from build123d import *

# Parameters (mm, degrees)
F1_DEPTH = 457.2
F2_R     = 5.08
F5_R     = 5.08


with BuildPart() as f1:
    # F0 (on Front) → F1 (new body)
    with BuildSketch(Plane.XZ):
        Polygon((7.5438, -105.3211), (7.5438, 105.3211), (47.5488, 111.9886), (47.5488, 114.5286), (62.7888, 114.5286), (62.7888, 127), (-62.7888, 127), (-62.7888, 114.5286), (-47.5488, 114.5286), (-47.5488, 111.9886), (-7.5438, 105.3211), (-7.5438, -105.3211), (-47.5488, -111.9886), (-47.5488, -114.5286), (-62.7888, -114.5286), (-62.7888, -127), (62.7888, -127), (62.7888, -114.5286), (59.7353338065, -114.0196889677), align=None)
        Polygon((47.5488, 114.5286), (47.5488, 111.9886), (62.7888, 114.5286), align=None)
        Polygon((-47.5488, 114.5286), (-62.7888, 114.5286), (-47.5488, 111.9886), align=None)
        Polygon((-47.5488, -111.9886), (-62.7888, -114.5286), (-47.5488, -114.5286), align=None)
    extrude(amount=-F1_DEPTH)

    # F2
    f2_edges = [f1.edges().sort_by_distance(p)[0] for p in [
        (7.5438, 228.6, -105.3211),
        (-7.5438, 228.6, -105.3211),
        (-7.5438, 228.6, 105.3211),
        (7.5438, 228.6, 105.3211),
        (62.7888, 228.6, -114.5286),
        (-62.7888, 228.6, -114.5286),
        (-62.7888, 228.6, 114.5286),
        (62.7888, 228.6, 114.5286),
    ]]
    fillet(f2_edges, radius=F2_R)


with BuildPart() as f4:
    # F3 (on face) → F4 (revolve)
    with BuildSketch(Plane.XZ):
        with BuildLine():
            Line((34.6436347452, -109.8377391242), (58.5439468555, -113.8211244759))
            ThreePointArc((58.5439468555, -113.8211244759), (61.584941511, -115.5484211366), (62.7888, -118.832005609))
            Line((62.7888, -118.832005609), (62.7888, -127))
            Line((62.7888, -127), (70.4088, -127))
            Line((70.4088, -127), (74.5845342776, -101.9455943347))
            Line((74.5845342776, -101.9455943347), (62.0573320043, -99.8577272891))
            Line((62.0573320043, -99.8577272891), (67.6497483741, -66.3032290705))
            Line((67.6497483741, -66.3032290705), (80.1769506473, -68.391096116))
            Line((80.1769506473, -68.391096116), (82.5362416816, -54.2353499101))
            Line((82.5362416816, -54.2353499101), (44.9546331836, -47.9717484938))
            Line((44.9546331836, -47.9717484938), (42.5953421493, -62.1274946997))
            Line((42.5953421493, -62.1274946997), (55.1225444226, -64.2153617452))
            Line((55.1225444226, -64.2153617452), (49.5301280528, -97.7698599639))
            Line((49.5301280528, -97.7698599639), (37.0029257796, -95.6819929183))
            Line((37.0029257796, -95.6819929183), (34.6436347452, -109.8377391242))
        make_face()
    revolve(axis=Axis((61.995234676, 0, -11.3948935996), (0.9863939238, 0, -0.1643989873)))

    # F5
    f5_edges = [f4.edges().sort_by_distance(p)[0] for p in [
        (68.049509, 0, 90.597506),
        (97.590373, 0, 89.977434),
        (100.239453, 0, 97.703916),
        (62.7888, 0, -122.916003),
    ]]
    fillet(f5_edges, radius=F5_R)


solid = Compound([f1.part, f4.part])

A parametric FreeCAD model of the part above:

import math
import FreeCAD as App
import Part
import Sketcher
Q = App.Units.Quantity


def edges_at(feature, points):
    """Names of the edges that pass closest to the given points."""
    edges = feature.Shape.Edges
    near = lambda p: min(range(len(edges)), key=lambda i: edges[i].distToShape(Part.Vertex(*p))[0])
    return sorted({f"Edge{near(p) + 1}" for p in points})

doc = App.newDocument("Part")
params = doc.addObject("Spreadsheet::Sheet", "Params")
for row, (alias, value) in enumerate([
    ("sketch1_width", "4.944 in"),
    ("sketch1_height", "8.293 in"),
    ("sketch1_height2", "0.491 in"),
    ("pad1_length", "18 in"),
    ("fillet_radius", "0.2 in"),
    ("sketch2_radius", "0.2 in"),
    ("sketch2_length", "1 in"),
    ("sketch2_width", "0.3 in"),
    ("sketch2_length2", "0.5 in"),
    ("sketch2_length3", "1.5 in"),
    ("revolution_angle", "360 deg"),
    ("fillet2_radius", "0.2 in"),
], start=1):
    params.set(f"A{row}", alias)
    params.set(f"B{row}", "=" + value)
    params.setAlias(f"B{row}", alias)

body = doc.addObject("PartDesign::Body", "Body")

sketch1 = body.newObject("Sketcher::SketchObject", "Sketch")
sketch1.AttachmentSupport = (doc.getObject("XZ_Plane"), [""])
sketch1.MapMode = "FlatFace"
sketch1.addGeometry([
    Part.LineSegment(App.Vector(7.5, -105.3, 0), App.Vector(7.5, 105.3, 0)),
    Part.LineSegment(App.Vector(7.5, 105.3, 0), App.Vector(62.8, 114.5, 0)),
    Part.LineSegment(App.Vector(62.8, 114.5, 0), App.Vector(62.8, 127, 0)),
    Part.LineSegment(App.Vector(62.8, 127, 0), App.Vector(-62.8, 127, 0)),
    Part.LineSegment(App.Vector(-62.8, 127, 0), App.Vector(-62.8, 114.5, 0)),
    Part.LineSegment(App.Vector(-62.8, 114.5, 0), App.Vector(-7.5, 105.3, 0)),
    Part.LineSegment(App.Vector(-7.5, 105.3, 0), App.Vector(-7.5, -105.3, 0)),
    Part.LineSegment(App.Vector(-7.5, -105.3, 0), App.Vector(-62.8, -114.5, 0)),
    Part.LineSegment(App.Vector(-62.8, -114.5, 0), App.Vector(-62.8, -127, 0)),
    Part.LineSegment(App.Vector(-62.8, -127, 0), App.Vector(62.8, -127, 0)),
    Part.LineSegment(App.Vector(62.8, -127, 0), App.Vector(62.8, -114.5, 0)),
    Part.LineSegment(App.Vector(62.8, -114.5, 0), App.Vector(59.7, -114, 0)),
    Part.LineSegment(App.Vector(59.7, -114, 0), App.Vector(7.5, -105.3, 0)),
], False)
sketch1.addConstraint([
    Sketcher.Constraint("Coincident", 0, 2, 1, 1),
    Sketcher.Constraint("Coincident", 1, 2, 2, 1),
    Sketcher.Constraint("Coincident", 2, 2, 3, 1),
    Sketcher.Constraint("Coincident", 3, 2, 4, 1),
    Sketcher.Constraint("Coincident", 4, 2, 5, 1),
    Sketcher.Constraint("Coincident", 5, 2, 6, 1),
    Sketcher.Constraint("Coincident", 6, 2, 7, 1),
    Sketcher.Constraint("Coincident", 7, 2, 8, 1),
    Sketcher.Constraint("Coincident", 8, 2, 9, 1),
    Sketcher.Constraint("Coincident", 9, 2, 10, 1),
    Sketcher.Constraint("Coincident", 10, 2, 11, 1),
    Sketcher.Constraint("Coincident", 11, 2, 12, 1),
    Sketcher.Constraint("Coincident", 12, 2, 0, 1),
    Sketcher.Constraint("Vertical", 0),
    Sketcher.Constraint("Vertical", 2),
    Sketcher.Constraint("Horizontal", 3),
    Sketcher.Constraint("Vertical", 4),
    Sketcher.Constraint("Vertical", 6),
    Sketcher.Constraint("Vertical", 8),
    Sketcher.Constraint("Horizontal", 9),
    Sketcher.Constraint("Vertical", 10),
    Sketcher.Constraint("Symmetric", 0, 2, 6, 2, -1, 1),
    Sketcher.Constraint("Symmetric", 1, 2, 7, 2, -1, 1),
    Sketcher.Constraint("Symmetric", 3, 2, 9, 2, -1, 1),
    Sketcher.Constraint("Symmetric", 1, 2, 4, 2, -2),
    Sketcher.Constraint("Parallel", 5, 11),
    Sketcher.Constraint("Parallel", 11, 12),
    Sketcher.Constraint("Horizontal", 0, 2, 5, 2),
    Sketcher.Constraint("Horizontal", 7, 2, 10, 2),
    Sketcher.Constraint("DistanceY", -1, 1, 2, 2, Q("5 in")),
    Sketcher.Constraint("DistanceX", 3, 2, 3, 1, Q("4.944 in")),
    Sketcher.Constraint("DistanceY", 0, 1, 0, 2, Q("8.293 in")),
    Sketcher.Constraint("DistanceY", 2, 1, 2, 2, Q("0.491 in")),
    Sketcher.Constraint("DistanceX", -1, 1, 0, 2, Q("0.297 in")),
    Sketcher.Constraint("Distance", 12, Q("52.911451 mm")),
])
sketch1.setExpression("Constraints[30]", "Params.sketch1_width")
sketch1.setExpression("Constraints[31]", "Params.sketch1_height")
sketch1.setExpression("Constraints[32]", "Params.sketch1_height2")
pad1 = body.newObject("PartDesign::Pad", "Pad")
pad1.Profile = sketch1
pad1.setExpression("Length", "Params.pad1_length")
pad1.Reversed = True
doc.recompute()

fillet = body.newObject("PartDesign::Fillet", "Fillet")
fillet.Base = (pad1, edges_at(pad1, [
    (7.544, 228.6, -105.321),
    (-7.544, 228.6, -105.321),
    (-7.544, 228.6, 105.321),
    (7.544, 228.6, 105.321),
    (62.789, 228.6, -114.529),
    (-62.789, 228.6, -114.529),
    (-62.789, 228.6, 114.529),
    (62.789, 228.6, 114.529),
]))
fillet.setExpression("Radius", "Params.fillet_radius")
body2 = doc.addObject("PartDesign::Body", "Body001")

sketch2 = body2.newObject("Sketcher::SketchObject", "Sketch001")
sketch2.AttachmentSupport = (doc.getObject("XZ_Plane001"), [""])
sketch2.MapMode = "FlatFace"
sketch2.addGeometry([
    Part.LineSegment(App.Vector(35, -110, 0), App.Vector(59, -114, 0)),
    Part.ArcOfCircle(Part.Circle(App.Vector(58, -119, 0), App.Vector(0, 0, 1), 5), math.radians(0), math.radians(81)),
    Part.LineSegment(App.Vector(63, -119, 0), App.Vector(63, -127, 0)),
    Part.LineSegment(App.Vector(63, -127, 0), App.Vector(70, -127, 0)),
    Part.LineSegment(App.Vector(70, -127, 0), App.Vector(75, -102, 0)),
    Part.LineSegment(App.Vector(75, -102, 0), App.Vector(62, -100, 0)),
    Part.LineSegment(App.Vector(62, -100, 0), App.Vector(68, -66, 0)),
    Part.LineSegment(App.Vector(68, -66, 0), App.Vector(80, -68, 0)),
    Part.LineSegment(App.Vector(80, -68, 0), App.Vector(83, -54, 0)),
    Part.LineSegment(App.Vector(83, -54, 0), App.Vector(45, -48, 0)),
    Part.LineSegment(App.Vector(45, -48, 0), App.Vector(43, -62, 0)),
    Part.LineSegment(App.Vector(43, -62, 0), App.Vector(55, -64, 0)),
    Part.LineSegment(App.Vector(55, -64, 0), App.Vector(50, -98, 0)),
    Part.LineSegment(App.Vector(50, -98, 0), App.Vector(37, -96, 0)),
    Part.LineSegment(App.Vector(37, -96, 0), App.Vector(35, -110, 0)),
], False)
sketch2.addGeometry(Part.LineSegment(App.Vector(51, -10, 0), App.Vector(89, -16, 0)), True)
sketch2.addConstraint([
    Sketcher.Constraint("Tangent", 0, 2, 1, 2),
    Sketcher.Constraint("Tangent", 1, 1, 2, 1),
    Sketcher.Constraint("Coincident", 2, 2, 3, 1),
    Sketcher.Constraint("Coincident", 3, 2, 4, 1),
    Sketcher.Constraint("Coincident", 4, 2, 5, 1),
    Sketcher.Constraint("Coincident", 5, 2, 6, 1),
    Sketcher.Constraint("Coincident", 6, 2, 7, 1),
    Sketcher.Constraint("Coincident", 7, 2, 8, 1),
    Sketcher.Constraint("Coincident", 8, 2, 9, 1),
    Sketcher.Constraint("Coincident", 9, 2, 10, 1),
    Sketcher.Constraint("Coincident", 10, 2, 11, 1),
    Sketcher.Constraint("Coincident", 11, 2, 12, 1),
    Sketcher.Constraint("Coincident", 12, 2, 13, 1),
    Sketcher.Constraint("Coincident", 13, 2, 14, 1),
    Sketcher.Constraint("Coincident", 14, 2, 0, 1),
    Sketcher.Constraint("Vertical", 2),
    Sketcher.Constraint("Horizontal", 3),
    Sketcher.Constraint("Perpendicular", 0, 4),
    Sketcher.Constraint("Perpendicular", 4, 5),
    Sketcher.Constraint("Perpendicular", 5, 6),
    Sketcher.Constraint("Perpendicular", 6, 7),
    Sketcher.Constraint("Perpendicular", 7, 8),
    Sketcher.Constraint("Perpendicular", 8, 9),
    Sketcher.Constraint("Perpendicular", 9, 10),
    Sketcher.Constraint("Perpendicular", 10, 11),
    Sketcher.Constraint("Perpendicular", 11, 12),
    Sketcher.Constraint("Perpendicular", 12, 13),
    Sketcher.Constraint("Perpendicular", 13, 14),
    Sketcher.Constraint("Perpendicular", 14, 15),
    Sketcher.Constraint("Equal", 5, 7),
    Sketcher.Constraint("Equal", 8, 10),
    Sketcher.Constraint("Equal", 7, 11),
    Sketcher.Constraint("Equal", 6, 12),
    Sketcher.Constraint("Equal", 11, 13),
    Sketcher.Constraint("Equal", 10, 14),
    Sketcher.Constraint("Equal", 9, 15),
    Sketcher.Constraint("Radius", 1, Q("0.2 in")),
    Sketcher.Constraint("Distance", 4, Q("1 in")),
    Sketcher.Constraint("DistanceX", 3, 1, 3, 2, Q("0.3 in")),
    Sketcher.Constraint("DistanceY", 2, 2, -1, 1, Q("5 in")),
    Sketcher.Constraint("Distance", 5, Q("0.5 in")),
    Sketcher.Constraint("Distance", 9, Q("1.5 in")),
    Sketcher.Constraint("DistanceX", -1, 1, 1, 3, Q("2.272 in")),
    Sketcher.Constraint("DistanceY", 5, 2, 6, 2, Q("33.554498 mm")),
    Sketcher.Constraint("DistanceX", 0, 2, 6, 2, Q("9.105802 mm")),
    Sketcher.Constraint("DistanceX", 9, 2, 5, 2, Q("17.102699 mm")),
    Sketcher.Constraint("DistanceX", -1, 1, 15, 1, Q("51.346572 mm")),
    Sketcher.Constraint("DistanceY", 10, 2, 15, 1, Q("52.507378 mm")),
])
sketch2.setExpression("Constraints[36]", "Params.sketch2_radius")
sketch2.setExpression("Constraints[37]", "Params.sketch2_length")
sketch2.setExpression("Constraints[38]", "Params.sketch2_width")
sketch2.setExpression("Constraints[40]", "Params.sketch2_length2")
sketch2.setExpression("Constraints[41]", "Params.sketch2_length3")
revolution = body2.newObject("PartDesign::Revolution", "Revolution")
revolution.Profile = sketch2
revolution.ReferenceAxis = (sketch2, ["Axis0"])
revolution.setExpression("Angle", "Params.revolution_angle")
doc.recompute()

fillet2 = body2.newObject("PartDesign::Fillet", "Fillet001")
fillet2.Base = (revolution, edges_at(revolution, [
    (68.05, 0, 90.598),
    (97.59, 0, 89.977),
    (100.239, 0, 97.704),
    (62.789, 0, -122.916),
]))
fillet2.setExpression("Radius", "Params.fillet2_radius")

doc.recompute()
